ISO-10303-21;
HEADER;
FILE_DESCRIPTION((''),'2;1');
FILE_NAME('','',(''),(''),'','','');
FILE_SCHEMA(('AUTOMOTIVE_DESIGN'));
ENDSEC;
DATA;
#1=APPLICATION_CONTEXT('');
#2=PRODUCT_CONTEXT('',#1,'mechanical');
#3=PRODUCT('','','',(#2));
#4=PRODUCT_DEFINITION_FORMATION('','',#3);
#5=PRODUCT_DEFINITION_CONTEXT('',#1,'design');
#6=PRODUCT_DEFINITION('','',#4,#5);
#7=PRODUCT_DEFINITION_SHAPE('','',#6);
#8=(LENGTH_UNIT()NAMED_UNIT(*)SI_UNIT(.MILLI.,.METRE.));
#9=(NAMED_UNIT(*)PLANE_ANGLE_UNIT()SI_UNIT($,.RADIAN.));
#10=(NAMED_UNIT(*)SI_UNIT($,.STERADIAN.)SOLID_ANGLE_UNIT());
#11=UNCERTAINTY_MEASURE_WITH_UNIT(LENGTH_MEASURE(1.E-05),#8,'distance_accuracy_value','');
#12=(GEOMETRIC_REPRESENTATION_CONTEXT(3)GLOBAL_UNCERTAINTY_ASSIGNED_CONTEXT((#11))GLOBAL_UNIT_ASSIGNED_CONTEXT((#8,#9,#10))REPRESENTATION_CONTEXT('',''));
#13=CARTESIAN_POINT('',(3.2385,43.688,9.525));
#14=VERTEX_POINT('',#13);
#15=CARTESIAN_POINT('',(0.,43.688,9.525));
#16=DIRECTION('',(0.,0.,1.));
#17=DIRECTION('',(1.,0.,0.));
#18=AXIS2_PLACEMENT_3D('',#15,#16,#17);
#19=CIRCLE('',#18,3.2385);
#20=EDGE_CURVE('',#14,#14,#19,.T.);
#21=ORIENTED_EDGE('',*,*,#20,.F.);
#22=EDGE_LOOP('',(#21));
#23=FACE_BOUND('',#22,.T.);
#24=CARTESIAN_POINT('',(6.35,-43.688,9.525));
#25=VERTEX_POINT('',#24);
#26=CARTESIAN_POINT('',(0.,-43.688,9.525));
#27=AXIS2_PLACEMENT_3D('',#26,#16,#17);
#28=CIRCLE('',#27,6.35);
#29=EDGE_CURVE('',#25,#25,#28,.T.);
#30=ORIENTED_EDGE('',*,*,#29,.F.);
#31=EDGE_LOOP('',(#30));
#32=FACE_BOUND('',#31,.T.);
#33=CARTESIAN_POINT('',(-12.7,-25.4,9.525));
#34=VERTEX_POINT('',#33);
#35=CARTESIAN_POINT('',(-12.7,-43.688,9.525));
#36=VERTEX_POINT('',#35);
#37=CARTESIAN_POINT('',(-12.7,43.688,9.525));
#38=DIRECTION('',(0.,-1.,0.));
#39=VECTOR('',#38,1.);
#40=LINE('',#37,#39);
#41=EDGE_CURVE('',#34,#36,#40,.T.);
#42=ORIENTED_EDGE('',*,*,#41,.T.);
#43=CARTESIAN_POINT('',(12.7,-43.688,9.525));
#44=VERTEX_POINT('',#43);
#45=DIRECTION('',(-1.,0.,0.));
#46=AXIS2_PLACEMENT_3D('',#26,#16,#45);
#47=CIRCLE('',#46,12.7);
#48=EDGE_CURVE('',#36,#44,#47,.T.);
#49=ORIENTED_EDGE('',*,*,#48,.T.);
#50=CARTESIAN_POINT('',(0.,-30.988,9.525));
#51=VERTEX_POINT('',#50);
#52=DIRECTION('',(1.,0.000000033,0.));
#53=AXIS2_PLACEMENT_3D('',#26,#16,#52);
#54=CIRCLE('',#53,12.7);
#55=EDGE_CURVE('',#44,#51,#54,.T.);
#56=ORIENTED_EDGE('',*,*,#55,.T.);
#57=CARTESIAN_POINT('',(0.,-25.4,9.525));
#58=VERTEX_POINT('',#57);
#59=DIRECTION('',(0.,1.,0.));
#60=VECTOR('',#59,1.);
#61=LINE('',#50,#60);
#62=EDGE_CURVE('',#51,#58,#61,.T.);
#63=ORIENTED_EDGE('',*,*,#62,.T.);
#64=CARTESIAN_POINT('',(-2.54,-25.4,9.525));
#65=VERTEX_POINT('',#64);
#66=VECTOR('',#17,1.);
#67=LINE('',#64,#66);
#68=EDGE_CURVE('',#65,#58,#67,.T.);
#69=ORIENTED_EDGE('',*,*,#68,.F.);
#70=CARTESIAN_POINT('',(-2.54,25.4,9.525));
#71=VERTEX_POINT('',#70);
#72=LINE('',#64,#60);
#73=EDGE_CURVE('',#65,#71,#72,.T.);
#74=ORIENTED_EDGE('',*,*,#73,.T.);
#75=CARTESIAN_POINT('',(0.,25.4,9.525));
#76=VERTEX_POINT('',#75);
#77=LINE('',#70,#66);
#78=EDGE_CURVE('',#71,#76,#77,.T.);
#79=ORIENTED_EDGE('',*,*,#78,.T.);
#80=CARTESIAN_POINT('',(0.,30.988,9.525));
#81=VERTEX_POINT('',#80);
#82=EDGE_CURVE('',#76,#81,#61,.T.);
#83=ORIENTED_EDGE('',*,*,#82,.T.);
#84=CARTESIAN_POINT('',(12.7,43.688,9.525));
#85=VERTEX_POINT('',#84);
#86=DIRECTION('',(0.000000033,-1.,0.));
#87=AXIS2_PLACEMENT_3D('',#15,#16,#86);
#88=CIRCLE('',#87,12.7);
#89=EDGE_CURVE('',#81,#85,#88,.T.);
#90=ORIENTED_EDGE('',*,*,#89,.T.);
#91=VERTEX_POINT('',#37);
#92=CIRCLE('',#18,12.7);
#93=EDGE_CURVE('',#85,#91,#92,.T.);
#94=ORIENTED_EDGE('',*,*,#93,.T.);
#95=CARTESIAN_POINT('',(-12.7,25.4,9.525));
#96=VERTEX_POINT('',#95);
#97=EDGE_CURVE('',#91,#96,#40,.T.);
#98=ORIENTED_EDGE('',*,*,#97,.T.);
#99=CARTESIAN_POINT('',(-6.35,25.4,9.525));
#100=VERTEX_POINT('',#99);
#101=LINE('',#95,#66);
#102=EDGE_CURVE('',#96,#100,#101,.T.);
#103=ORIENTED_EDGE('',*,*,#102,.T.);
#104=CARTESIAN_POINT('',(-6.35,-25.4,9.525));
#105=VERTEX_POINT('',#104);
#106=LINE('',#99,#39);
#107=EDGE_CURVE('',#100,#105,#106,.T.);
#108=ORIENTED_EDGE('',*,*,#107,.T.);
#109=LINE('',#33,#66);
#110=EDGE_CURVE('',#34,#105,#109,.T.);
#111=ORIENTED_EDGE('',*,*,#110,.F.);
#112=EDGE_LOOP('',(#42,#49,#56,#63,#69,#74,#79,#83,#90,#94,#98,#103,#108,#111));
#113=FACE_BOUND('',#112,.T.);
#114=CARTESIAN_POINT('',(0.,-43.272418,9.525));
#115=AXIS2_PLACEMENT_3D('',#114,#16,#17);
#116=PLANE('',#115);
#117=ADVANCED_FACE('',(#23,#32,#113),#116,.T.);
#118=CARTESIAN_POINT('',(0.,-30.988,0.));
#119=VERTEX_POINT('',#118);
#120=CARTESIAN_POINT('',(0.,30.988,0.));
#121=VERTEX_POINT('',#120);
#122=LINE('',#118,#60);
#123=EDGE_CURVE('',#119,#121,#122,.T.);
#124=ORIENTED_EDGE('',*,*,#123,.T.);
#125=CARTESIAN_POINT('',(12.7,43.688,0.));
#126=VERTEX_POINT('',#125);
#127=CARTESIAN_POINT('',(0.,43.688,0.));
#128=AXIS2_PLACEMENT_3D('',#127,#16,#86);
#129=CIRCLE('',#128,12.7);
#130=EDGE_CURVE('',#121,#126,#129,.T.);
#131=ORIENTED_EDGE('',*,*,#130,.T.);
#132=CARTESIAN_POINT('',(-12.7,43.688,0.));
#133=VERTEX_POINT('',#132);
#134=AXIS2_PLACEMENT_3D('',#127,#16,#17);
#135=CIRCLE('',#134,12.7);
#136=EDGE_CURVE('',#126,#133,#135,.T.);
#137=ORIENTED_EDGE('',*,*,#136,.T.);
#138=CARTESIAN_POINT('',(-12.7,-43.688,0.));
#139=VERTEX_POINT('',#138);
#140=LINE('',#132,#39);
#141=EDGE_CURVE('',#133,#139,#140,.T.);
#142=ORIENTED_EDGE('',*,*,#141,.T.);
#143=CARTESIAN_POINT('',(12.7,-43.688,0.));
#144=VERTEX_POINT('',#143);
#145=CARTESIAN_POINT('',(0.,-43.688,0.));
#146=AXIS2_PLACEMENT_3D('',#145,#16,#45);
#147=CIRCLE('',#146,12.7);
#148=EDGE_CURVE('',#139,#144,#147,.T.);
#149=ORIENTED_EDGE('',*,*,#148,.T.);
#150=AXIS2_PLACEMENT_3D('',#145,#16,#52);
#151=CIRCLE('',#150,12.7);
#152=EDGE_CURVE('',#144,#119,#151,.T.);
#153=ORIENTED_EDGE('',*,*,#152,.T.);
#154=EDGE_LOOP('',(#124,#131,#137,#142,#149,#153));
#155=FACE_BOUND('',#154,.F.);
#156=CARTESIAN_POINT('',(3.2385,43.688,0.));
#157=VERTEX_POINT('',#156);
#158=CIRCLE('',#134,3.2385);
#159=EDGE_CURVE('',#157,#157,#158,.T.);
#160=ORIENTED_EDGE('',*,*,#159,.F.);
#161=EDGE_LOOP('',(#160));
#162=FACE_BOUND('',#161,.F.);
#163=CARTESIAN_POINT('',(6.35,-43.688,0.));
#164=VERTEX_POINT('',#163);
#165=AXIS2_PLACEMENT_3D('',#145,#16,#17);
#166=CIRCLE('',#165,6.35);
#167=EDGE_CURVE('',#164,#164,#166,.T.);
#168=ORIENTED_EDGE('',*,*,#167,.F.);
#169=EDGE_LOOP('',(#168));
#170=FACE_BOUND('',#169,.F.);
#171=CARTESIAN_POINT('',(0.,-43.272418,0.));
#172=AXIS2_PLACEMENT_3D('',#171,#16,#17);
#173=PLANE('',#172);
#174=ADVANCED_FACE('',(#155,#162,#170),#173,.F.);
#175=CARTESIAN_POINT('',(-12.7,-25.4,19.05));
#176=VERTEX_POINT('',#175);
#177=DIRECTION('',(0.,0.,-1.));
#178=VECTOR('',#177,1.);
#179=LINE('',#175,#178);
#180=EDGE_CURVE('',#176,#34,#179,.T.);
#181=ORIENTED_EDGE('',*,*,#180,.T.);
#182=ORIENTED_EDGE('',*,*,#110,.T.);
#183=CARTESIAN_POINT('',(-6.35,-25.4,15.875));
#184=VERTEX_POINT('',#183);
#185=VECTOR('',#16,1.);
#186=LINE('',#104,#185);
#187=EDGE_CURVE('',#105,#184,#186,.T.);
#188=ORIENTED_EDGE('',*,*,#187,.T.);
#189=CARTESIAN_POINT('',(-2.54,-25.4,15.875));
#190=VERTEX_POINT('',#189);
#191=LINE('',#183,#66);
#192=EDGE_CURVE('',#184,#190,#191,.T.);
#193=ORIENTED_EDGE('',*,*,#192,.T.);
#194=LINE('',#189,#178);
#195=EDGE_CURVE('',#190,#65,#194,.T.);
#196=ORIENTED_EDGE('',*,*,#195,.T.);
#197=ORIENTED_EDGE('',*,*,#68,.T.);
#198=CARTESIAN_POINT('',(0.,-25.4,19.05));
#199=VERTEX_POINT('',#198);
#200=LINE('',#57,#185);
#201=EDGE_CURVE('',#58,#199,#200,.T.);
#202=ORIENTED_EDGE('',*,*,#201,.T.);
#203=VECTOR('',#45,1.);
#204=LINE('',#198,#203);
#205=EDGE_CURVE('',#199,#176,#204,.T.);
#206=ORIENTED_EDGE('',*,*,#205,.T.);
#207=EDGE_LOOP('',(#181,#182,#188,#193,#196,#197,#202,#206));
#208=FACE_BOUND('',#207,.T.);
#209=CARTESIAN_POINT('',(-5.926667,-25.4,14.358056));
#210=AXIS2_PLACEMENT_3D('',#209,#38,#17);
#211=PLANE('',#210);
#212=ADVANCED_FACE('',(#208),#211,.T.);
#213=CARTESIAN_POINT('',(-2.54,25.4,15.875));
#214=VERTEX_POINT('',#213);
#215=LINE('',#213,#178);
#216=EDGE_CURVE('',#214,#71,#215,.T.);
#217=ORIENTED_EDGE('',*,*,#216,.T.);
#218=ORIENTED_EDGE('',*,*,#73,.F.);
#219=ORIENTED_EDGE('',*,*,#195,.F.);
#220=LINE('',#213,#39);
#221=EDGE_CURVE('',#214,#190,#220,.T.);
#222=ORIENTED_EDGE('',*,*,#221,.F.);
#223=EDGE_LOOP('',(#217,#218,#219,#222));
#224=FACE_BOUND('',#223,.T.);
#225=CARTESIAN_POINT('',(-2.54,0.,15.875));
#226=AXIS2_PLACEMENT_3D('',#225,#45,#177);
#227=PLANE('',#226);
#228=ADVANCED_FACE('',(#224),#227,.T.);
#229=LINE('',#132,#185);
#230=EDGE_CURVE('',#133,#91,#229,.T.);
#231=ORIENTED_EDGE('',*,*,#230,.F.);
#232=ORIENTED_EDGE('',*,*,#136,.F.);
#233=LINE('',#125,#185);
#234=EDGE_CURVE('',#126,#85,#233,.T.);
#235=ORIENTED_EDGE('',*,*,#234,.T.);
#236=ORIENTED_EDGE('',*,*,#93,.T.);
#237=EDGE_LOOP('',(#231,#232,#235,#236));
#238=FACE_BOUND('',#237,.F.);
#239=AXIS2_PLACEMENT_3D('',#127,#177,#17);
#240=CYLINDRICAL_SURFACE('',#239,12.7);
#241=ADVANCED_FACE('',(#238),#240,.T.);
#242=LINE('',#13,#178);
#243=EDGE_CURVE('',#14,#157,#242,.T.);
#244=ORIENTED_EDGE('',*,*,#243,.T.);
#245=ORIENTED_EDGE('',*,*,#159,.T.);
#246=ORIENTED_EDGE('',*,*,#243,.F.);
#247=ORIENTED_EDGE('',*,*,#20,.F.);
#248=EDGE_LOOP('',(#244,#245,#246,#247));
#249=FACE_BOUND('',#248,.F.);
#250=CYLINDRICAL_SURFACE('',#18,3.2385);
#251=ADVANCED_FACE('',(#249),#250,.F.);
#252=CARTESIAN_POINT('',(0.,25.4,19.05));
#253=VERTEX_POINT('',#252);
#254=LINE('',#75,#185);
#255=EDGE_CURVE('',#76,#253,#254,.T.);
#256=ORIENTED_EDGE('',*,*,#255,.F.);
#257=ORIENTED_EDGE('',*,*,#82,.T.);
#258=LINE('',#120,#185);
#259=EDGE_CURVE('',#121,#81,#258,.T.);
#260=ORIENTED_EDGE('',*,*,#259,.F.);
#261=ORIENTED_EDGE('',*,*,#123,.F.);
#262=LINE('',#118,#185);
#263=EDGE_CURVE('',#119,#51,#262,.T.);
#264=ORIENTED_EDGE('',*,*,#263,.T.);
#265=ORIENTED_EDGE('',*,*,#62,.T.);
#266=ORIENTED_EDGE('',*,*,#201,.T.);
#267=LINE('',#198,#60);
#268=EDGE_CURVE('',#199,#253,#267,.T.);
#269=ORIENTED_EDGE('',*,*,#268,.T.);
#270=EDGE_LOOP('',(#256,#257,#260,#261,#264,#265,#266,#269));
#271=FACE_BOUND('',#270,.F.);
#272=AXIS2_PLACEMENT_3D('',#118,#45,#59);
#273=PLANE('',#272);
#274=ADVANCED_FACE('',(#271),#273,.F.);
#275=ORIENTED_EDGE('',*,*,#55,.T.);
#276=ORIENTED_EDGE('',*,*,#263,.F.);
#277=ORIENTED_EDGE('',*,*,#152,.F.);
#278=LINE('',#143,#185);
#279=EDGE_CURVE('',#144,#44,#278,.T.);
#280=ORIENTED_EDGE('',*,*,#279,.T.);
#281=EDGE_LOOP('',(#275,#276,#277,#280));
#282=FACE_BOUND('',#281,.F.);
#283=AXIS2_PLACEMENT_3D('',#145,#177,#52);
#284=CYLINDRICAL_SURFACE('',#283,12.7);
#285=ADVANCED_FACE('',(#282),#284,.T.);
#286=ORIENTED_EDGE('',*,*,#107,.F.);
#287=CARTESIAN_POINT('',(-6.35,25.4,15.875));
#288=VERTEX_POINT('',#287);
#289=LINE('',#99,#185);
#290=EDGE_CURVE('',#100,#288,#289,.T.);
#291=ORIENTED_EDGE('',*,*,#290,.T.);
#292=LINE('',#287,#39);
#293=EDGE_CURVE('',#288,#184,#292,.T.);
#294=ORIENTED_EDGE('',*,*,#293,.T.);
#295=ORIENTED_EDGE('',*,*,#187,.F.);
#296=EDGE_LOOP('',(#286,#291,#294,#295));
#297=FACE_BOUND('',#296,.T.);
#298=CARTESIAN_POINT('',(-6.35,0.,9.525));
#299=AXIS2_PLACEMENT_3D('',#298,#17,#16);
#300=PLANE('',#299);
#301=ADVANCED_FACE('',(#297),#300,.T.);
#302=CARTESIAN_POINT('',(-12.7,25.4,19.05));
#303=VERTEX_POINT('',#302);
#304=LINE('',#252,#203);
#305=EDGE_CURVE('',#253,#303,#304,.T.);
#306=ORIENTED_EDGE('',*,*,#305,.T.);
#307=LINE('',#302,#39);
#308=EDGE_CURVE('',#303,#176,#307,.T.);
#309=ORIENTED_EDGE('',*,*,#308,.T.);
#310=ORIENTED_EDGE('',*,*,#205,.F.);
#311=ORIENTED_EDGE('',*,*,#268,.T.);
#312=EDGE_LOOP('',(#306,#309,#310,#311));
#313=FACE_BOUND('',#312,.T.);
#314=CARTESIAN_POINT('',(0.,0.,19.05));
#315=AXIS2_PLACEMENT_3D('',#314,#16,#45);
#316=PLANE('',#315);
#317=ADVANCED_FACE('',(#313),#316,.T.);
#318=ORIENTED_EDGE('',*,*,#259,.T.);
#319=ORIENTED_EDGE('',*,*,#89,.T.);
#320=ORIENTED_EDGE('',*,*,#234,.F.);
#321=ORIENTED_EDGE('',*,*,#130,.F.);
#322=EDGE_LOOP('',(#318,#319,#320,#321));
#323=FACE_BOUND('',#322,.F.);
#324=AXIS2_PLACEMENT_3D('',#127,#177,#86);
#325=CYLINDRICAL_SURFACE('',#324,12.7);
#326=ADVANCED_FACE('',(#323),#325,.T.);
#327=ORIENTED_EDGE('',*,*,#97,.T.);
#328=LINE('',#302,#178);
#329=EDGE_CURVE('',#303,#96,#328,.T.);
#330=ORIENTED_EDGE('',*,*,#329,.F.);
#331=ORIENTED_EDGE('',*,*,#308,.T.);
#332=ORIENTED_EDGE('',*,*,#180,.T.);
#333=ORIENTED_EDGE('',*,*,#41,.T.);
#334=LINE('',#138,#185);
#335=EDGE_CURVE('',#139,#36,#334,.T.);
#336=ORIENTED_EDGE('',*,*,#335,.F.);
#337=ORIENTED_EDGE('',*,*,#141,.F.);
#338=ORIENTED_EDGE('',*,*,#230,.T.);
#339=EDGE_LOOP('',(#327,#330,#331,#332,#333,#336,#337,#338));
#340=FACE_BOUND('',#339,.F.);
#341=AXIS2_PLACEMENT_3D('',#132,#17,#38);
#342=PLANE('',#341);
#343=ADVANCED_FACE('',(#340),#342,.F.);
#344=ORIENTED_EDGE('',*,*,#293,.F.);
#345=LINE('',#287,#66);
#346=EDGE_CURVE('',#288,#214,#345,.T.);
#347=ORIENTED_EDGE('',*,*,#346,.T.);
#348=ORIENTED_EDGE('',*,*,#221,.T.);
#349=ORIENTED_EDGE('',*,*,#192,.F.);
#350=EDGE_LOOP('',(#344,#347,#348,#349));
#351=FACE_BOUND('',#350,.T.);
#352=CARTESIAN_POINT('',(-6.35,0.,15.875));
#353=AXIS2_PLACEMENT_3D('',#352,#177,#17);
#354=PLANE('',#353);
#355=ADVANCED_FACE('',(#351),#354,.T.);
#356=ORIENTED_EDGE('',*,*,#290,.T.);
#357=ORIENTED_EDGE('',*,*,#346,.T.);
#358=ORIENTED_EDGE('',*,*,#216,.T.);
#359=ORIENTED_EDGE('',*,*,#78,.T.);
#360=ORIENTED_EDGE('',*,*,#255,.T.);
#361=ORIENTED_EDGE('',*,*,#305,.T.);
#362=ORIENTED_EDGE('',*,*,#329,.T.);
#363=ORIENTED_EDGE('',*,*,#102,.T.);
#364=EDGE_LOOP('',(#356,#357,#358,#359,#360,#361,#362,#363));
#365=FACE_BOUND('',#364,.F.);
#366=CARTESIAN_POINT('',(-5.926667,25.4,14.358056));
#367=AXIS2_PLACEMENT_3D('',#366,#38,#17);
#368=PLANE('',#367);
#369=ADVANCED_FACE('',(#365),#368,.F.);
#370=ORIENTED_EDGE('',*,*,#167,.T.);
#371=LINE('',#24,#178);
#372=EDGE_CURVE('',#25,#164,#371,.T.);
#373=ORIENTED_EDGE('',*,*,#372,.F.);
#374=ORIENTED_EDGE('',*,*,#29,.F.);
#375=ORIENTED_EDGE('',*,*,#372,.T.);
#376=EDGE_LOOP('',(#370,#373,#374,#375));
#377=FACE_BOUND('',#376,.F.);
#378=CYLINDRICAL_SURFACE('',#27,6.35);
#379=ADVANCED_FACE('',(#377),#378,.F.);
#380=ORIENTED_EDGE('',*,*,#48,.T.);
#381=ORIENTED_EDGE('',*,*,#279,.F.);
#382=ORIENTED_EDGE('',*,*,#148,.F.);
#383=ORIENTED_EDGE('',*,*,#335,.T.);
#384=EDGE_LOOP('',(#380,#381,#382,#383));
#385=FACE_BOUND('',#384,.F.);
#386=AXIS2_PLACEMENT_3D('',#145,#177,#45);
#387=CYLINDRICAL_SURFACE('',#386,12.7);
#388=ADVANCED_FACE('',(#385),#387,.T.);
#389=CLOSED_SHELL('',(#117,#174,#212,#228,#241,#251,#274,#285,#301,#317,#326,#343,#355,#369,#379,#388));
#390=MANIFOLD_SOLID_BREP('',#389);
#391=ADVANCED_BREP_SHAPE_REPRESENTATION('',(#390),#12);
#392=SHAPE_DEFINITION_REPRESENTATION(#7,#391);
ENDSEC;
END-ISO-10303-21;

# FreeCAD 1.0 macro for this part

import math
import FreeCAD as App
import Part
import Sketcher

V = App.Vector
Q = App.Units.Quantity


def add_polygon(sketch, points):
    """Adds a closed chain of lines whose ends are joined by coincident constraints."""
    first, n = sketch.GeometryCount, len(points)
    for a, b in zip(points, points[1:] + points[:1]):
        sketch.addGeometry(Part.LineSegment(App.Vector(*a, 0), App.Vector(*b, 0)), False)
    for i in range(n):
        sketch.addConstraint(Sketcher.Constraint("Coincident", first + i, 2, first + (i + 1) % n, 1))

doc = App.newDocument("Part")
params = doc.addObject("Spreadsheet::Sheet", "Params")
for row, (alias, value) in enumerate([
    ("sketch1_radius", "0.5 in"),
    ("sketch1_height", "2.44 in"),
    ("pad1_length", "0.375 in"),
    ("sketch2_diameter", "0.5 in"),
    ("sketch2_diameter2", "0.255 in"),
    ("pocket1_length", "1 in"),
    ("sketch3_width", "0.5 in"),
    ("sketch3_width2", "0.1 in"),
    ("sketch3_width3", "0.25 in"),
    ("sketch3_height", "0.375 in"),
    ("pad2_length", "2 in"),
], start=1):
    params.set(f"A{row}", alias)
    params.set(f"B{row}", "=" + value)
    params.setAlias(f"B{row}", alias)

body = doc.addObject("PartDesign::Body", "Body")

# Sketch on XY plane
sketch1 = body.newObject("Sketcher::SketchObject", "Sketch")
sketch1.AttachmentSupport = (doc.getObject("XY_Plane"), [""])
sketch1.MapMode = "FlatFace"
sketch1.addGeometry([
    Part.ArcOfCircle(Part.Circle(V(0, -44, 0), V(0, 0, 1), 13), math.radians(180), math.radians(360)),  # 0
    Part.ArcOfCircle(Part.Circle(V(0, -44, 0), V(0, 0, 1), 13), math.radians(0), math.radians(90)),  # 1
    Part.LineSegment(V(0, -31, 0), V(0, 31, 0)),  # 2
    Part.ArcOfCircle(Part.Circle(V(0, 44, 0), V(0, 0, 1), 13), math.radians(-90), math.radians(0)),  # 3
    Part.ArcOfCircle(Part.Circle(V(0, 44, 0), V(0, 0, 1), 13), math.radians(0), math.radians(180)),  # 4
    Part.LineSegment(V(-13, 44, 0), V(-13, -44, 0)),  # 5
], False)
sketch1.addConstraint([
    Sketcher.Constraint("Tangent", 0, 2, 1, 1),
    Sketcher.Constraint("Coincident", 1, 2, 2, 1),
    Sketcher.Constraint("Coincident", 2, 2, 3, 1),
    Sketcher.Constraint("Tangent", 3, 2, 4, 1),
    Sketcher.Constraint("Tangent", 4, 2, 5, 1),
    Sketcher.Constraint("Tangent", 5, 2, 0, 1),
    Sketcher.Constraint("Vertical", 2),
    Sketcher.Constraint("Vertical", 5),
    Sketcher.Constraint("Equal", 0, 1),
    Sketcher.Constraint("Equal", 1, 3),
    Sketcher.Constraint("Equal", 3, 4),
    Sketcher.Constraint("Symmetric", 0, 3, 3, 3, -1, 1),
    Sketcher.Constraint("PointOnObject", 1, 2, -2),
    Sketcher.Constraint("Horizontal", 1, 3, 0, 2),
    Sketcher.Constraint("Horizontal", 4, 3, 3, 2),
    Sketcher.Constraint("Radius", 0, Q("0.5 in")),
    Sketcher.Constraint("DistanceY", 2, 1, 2, 2, Q("2.44 in")),
])
sketch1.setExpression("Constraints[15]", "Params.sketch1_radius")
sketch1.setExpression("Constraints[16]", "Params.sketch1_height")
pad1 = body.newObject("PartDesign::Pad", "Pad")
pad1.Profile = sketch1
pad1.setExpression("Length", "Params.pad1_length")

# Sketch on XY plane
sketch2 = body.newObject("Sketcher::SketchObject", "Sketch001")
sketch2.AttachmentSupport = (doc.getObject("XY_Plane"), [""])
sketch2.MapMode = "FlatFace"
sketch2.AttachmentOffset = App.Placement(V(0, 0, 0.375 * 25.4), App.Rotation())
sketch2.addGeometry([
    Part.Circle(V(0, -43.7, 0), V(0, 0, 1), 6.3),
    Part.Circle(V(0, 43.7, 0), V(0, 0, 1), 3.2),
], False)
sketch2.addConstraint([
    Sketcher.Constraint("Symmetric", 0, 3, 1, 3, -1, 1),
    Sketcher.Constraint("PointOnObject", 0, 3, -2),
    Sketcher.Constraint("Diameter", 0, Q("0.5 in")),
    Sketcher.Constraint("Diameter", 1, Q("0.255 in")),
    Sketcher.Constraint("DistanceY", 0, 3, -1, 1, Q("1.72 in")),
])
sketch2.setExpression("Constraints[2]", "Params.sketch2_diameter")
sketch2.setExpression("Constraints[3]", "Params.sketch2_diameter2")
pocket1 = body.newObject("PartDesign::Pocket", "Pocket")
pocket1.Profile = sketch2
pocket1.setExpression("Length", "Params.pocket1_length")

# Sketch on XZ plane
sketch3 = body.newObject("Sketcher::SketchObject", "Sketch002")
sketch3.AttachmentSupport = (doc.getObject("XZ_Plane"), [""])
sketch3.MapMode = "FlatFace"
add_polygon(sketch3, [(0, 19.1), (-12.7, 19.1), (-12.7, 9.5), (-6.3, 9.5), (-6.3, 15.9), (-2.5, 15.9), (-2.5, 9.5), (0, 9.5)])  # lines 0-7
sketch3.addConstraint([
    Sketcher.Constraint("Horizontal", 0),
    Sketcher.Constraint("Vertical", 1),
    Sketcher.Constraint("Horizontal", 2),
    Sketcher.Constraint("Vertical", 3),
    Sketcher.Constraint("Horizontal", 4),
    Sketcher.Constraint("Vertical", 5),
    Sketcher.Constraint("Horizontal", 6),
    Sketcher.Constraint("Vertical", 7),
    Sketcher.Constraint("PointOnObject", 6, 2, -2),
    Sketcher.Constraint("Horizontal", 2, 2, 5, 2),
    Sketcher.Constraint("Equal", 2, 3),
    Sketcher.Constraint("DistanceX", 0, 2, 0, 1, Q("0.5 in")),
    Sketcher.Constraint("DistanceX", 6, 1, 6, 2, Q("0.1 in")),
    Sketcher.Constraint("DistanceX", 2, 1, 2, 2, Q("0.25 in")),
    Sketcher.Constraint("DistanceY", 1, 2, 1, 1, Q("0.375 in")),
    Sketcher.Constraint("DistanceY", -1, 1, 0, 2, Q("0.75 in")),
])
sketch3.setExpression("Constraints[19]", "Params.sketch3_width")
sketch3.setExpression("Constraints[20]", "Params.sketch3_width2")
sketch3.setExpression("Constraints[21]", "Params.sketch3_width3")
sketch3.setExpression("Constraints[22]", "Params.sketch3_height")
pad2 = body.newObject("PartDesign::Pad", "Pad001")
pad2.Profile = sketch3
pad2.setExpression("Length", "Params.pad2_length")
pad2.Midplane = True

doc.recompute()
